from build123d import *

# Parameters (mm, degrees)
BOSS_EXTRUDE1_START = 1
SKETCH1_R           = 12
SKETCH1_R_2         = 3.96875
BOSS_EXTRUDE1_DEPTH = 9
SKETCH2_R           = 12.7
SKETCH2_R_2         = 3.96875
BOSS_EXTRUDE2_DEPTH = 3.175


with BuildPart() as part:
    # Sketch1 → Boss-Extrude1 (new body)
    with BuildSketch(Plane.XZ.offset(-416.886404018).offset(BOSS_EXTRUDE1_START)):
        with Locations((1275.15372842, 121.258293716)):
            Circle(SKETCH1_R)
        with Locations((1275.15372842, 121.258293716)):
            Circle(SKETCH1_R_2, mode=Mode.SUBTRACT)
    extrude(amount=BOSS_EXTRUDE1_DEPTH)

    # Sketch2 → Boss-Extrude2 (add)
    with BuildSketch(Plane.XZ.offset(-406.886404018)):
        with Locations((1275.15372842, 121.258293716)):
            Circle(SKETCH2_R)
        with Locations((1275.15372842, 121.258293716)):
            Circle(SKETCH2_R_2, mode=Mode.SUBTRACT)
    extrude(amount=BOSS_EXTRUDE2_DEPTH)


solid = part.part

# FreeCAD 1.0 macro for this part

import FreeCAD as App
import Part
import Sketcher

V = App.Vector
Q = App.Units.Quantity

doc = App.newDocument("Part")
params = doc.addObject("Spreadsheet::Sheet", "Params")
for row, (alias, value) in enumerate([
    ("sketch1_diameter", "0.3125 in"),
    ("pad1_length", "9 mm"),
    ("sketch2_diameter", "1 in"),
    ("sketch2_diameter2", "0.3125 in"),
    ("pad2_length", "0.125 in"),
], start=1):
    params.set(f"A{row}", alias)
    params.set(f"B{row}", "=" + value)
    params.setAlias(f"B{row}", alias)

body = doc.addObject("PartDesign::Body", "Body")

# Sketch on XZ plane
sketch1 = body.newObject("Sketcher::SketchObject", "Sketch")
sketch1.AttachmentSupport = (doc.getObject("XZ_Plane"), [""])
sketch1.MapMode = "FlatFace"
sketch1.AttachmentOffset = App.Placement(V(0, 0, -415.886404), App.Rotation())
sketch1.addGeometry([
    Part.Circle(V(1275.2, 121.3, 0), V(0, 0, 1), 12),
    Part.Circle(V(1275.2, 121.3, 0), V(0, 0, 1), 4),
], False)
sketch1.addConstraint([
    Sketcher.Constraint("Coincident", 1, 3, 0, 3),
    Sketcher.Constraint("Diameter", 1, Q("0.3125 in")),
    Sketcher.Constraint("Diameter", 0, 24.0),
    Sketcher.Constraint("DistanceX", -1, 1, 0, 3, 1275.153728),
    Sketcher.Constraint("DistanceY", -1, 1, 0, 3, 121.258294),
])
sketch1.setExpression("Constraints[1]", "Params.sketch1_diameter")
pad1 = body.newObject("PartDesign::Pad", "Pad")
pad1.Profile = sketch1
pad1.setExpression("Length", "Params.pad1_length")

# Sketch on XZ plane
sketch2 = body.newObject("Sketcher::SketchObject", "Sketch001")
sketch2.AttachmentSupport = (doc.getObject("XZ_Plane"), [""])
sketch2.MapMode = "FlatFace"
sketch2.AttachmentOffset = App.Placement(V(0, 0, -406.886404), App.Rotation())
sketch2.addGeometry([
    Part.Circle(V(1275.2, 121.3, 0), V(0, 0, 1), 12.7),
    Part.Circle(V(1275.2, 121.3, 0), V(0, 0, 1), 4),
], False)
sketch2.addConstraint([
    Sketcher.Constraint("Coincident", 1, 3, 0, 3),
    Sketcher.Constraint("Diameter", 0, Q("1 in")),
    Sketcher.Constraint("Diameter", 1, Q("0.3125 in")),
    Sketcher.Constraint("DistanceX", -1, 1, 0, 3, 1275.153728),
    Sketcher.Constraint("DistanceY", -1, 1, 0, 3, 121.258294),
])
sketch2.setExpression("Constraints[1]", "Params.sketch2_diameter")
sketch2.setExpression("Constraints[2]", "Params.sketch2_diameter2")
pad2 = body.newObject("PartDesign::Pad", "Pad001")
pad2.Profile = sketch2
pad2.setExpression("Length", "Params.pad2_length")

doc.recompute()
